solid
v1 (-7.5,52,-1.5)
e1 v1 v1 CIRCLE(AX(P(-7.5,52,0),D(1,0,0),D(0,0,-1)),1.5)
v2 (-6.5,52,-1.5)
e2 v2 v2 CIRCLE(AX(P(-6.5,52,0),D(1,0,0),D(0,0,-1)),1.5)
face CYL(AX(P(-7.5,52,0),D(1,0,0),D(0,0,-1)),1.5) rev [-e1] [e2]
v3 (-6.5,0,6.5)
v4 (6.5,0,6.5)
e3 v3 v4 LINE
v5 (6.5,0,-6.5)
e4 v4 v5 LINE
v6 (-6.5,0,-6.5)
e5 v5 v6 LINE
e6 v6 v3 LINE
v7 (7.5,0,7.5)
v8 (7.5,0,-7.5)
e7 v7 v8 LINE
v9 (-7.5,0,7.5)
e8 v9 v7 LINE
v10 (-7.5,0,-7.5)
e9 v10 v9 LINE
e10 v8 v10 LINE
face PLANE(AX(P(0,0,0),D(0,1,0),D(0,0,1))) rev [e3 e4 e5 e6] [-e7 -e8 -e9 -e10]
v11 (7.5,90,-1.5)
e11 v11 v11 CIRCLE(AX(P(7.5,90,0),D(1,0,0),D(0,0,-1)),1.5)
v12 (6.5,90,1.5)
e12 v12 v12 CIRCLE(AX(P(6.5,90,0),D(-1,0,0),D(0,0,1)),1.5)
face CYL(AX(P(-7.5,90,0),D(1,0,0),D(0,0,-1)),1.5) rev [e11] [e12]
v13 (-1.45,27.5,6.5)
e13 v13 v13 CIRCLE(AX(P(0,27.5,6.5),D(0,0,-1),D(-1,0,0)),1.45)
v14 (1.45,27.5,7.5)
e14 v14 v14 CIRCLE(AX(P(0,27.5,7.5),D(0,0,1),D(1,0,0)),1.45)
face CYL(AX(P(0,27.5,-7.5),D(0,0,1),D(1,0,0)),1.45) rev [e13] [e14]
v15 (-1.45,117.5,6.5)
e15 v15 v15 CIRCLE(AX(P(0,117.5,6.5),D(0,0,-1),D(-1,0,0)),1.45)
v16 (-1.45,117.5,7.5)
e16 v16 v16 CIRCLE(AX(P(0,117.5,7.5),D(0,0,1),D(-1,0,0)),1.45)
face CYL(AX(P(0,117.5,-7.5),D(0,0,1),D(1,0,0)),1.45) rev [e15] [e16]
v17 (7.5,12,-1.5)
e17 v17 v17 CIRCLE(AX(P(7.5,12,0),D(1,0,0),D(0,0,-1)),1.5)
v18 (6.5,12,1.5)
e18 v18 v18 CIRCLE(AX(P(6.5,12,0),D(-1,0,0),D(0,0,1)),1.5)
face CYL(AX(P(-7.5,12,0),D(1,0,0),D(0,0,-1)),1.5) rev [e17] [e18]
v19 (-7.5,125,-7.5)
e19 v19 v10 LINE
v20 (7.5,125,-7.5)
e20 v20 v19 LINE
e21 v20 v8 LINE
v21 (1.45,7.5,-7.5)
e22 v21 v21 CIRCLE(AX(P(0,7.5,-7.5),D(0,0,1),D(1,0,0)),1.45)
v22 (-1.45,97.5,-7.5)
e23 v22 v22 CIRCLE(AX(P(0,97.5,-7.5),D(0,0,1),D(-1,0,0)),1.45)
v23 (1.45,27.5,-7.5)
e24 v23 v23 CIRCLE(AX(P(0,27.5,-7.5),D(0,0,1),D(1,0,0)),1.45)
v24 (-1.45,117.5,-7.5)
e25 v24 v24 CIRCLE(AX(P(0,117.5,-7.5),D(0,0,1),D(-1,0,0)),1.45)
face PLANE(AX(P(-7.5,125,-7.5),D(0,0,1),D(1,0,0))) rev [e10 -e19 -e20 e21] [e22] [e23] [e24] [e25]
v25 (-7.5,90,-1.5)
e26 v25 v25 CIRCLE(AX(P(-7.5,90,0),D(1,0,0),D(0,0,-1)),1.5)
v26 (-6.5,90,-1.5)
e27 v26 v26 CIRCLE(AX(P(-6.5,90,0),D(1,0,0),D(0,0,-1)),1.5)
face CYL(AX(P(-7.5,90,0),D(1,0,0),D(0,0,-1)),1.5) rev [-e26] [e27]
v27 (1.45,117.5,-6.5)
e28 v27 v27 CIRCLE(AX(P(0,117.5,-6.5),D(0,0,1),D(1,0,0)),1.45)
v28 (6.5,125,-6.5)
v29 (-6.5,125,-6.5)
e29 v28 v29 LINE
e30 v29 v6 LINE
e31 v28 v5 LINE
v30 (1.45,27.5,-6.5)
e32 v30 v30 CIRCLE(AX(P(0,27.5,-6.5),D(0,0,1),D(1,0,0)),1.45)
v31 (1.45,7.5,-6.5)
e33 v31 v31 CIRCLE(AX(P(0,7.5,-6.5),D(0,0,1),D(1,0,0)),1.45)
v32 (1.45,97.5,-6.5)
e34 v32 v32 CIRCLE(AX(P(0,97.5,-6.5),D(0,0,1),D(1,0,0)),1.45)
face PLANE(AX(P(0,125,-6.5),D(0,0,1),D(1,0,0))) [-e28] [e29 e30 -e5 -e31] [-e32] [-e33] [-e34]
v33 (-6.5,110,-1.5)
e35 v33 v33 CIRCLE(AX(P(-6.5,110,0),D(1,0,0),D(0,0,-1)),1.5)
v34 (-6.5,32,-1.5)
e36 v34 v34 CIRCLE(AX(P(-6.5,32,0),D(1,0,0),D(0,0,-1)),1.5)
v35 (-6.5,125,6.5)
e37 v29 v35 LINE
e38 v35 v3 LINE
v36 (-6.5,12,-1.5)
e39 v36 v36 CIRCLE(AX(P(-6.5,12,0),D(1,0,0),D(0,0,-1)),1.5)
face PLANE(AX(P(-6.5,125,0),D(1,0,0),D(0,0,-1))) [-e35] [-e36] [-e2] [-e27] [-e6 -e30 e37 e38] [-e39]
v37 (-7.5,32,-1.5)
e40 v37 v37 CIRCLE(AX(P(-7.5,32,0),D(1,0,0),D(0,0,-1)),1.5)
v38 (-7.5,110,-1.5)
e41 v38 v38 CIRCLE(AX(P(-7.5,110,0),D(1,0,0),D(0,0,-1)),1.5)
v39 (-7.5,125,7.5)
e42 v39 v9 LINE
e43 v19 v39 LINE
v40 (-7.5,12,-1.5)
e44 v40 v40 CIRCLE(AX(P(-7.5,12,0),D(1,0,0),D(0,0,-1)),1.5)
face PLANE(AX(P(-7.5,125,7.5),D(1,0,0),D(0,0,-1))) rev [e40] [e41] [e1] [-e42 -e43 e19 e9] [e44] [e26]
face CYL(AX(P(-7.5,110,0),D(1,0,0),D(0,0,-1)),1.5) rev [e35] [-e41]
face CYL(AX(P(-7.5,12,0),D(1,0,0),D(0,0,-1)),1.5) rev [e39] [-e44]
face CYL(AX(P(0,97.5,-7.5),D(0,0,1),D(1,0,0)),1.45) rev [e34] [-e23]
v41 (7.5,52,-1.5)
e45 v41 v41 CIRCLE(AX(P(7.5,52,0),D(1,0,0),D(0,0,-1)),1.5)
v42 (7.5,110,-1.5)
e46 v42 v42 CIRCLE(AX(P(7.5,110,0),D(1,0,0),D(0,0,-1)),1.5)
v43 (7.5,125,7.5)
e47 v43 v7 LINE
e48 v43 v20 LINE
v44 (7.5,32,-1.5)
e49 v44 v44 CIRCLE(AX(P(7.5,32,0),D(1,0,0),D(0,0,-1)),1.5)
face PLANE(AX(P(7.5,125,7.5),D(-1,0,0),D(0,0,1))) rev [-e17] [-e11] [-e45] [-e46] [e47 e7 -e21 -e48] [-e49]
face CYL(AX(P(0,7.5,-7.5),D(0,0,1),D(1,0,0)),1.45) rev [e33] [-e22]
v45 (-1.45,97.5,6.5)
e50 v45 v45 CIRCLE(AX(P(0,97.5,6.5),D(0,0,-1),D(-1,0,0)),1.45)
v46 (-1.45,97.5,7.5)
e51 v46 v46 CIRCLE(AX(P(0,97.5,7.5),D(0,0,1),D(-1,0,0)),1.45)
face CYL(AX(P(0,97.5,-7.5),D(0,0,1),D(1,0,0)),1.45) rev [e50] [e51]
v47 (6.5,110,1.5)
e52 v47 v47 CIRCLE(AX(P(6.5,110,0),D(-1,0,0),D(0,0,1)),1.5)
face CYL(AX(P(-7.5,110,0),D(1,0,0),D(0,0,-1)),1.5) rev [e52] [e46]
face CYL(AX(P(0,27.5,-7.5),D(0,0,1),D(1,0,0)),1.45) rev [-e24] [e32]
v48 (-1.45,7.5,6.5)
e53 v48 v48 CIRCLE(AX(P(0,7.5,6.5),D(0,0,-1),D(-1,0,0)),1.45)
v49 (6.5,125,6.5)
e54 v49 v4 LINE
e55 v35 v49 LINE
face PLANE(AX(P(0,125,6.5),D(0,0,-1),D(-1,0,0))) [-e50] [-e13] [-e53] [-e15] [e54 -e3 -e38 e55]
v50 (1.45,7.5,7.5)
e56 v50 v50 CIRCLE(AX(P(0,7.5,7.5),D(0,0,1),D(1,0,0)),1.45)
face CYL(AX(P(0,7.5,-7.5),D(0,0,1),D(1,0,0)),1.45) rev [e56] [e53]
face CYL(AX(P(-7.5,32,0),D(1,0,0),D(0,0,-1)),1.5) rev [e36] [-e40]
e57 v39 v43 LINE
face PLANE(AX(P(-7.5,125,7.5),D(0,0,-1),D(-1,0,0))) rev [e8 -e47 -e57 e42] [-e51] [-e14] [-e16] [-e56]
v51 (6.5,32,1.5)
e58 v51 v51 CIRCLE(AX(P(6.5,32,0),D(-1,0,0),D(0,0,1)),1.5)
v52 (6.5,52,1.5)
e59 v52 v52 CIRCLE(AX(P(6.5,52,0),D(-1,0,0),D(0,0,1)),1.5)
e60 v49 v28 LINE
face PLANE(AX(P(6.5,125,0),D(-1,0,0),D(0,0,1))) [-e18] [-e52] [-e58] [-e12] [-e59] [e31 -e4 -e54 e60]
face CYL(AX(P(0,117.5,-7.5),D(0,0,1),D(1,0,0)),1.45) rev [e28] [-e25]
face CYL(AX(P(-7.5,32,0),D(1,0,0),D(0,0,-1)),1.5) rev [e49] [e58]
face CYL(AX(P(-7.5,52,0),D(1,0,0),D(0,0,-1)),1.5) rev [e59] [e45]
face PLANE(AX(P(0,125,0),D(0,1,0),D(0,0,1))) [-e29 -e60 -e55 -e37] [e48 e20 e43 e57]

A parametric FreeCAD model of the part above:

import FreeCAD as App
import Part
import Sketcher
from FreeCAD import Vector
Q = App.Units.Quantity

doc = App.newDocument("Part")
body = doc.addObject("PartDesign::Body", "Body")

# Sketch on XZ plane
sketch1 = body.newObject("Sketcher::SketchObject", "Sketch")
sketch1.AttachmentSupport = (doc.getObject("XZ_Plane"), [""])
sketch1.MapMode = "FlatFace"
sketch1.addGeometry([
    Part.LineSegment(Vector(-8, -8, 0), Vector(-8, 8, 0)),  # 0
    Part.LineSegment(Vector(-8, 8, 0), Vector(8, 8, 0)),  # 1
    Part.LineSegment(Vector(8, 8, 0), Vector(8, -8, 0)),  # 2
    Part.LineSegment(Vector(8, -8, 0), Vector(-8, -8, 0)),  # 3
    Part.LineSegment(Vector(6, 6, 0), Vector(-6, 6, 0)),  # 4
    Part.LineSegment(Vector(-6, 6, 0), Vector(-6, -6, 0)),  # 5
    Part.LineSegment(Vector(-6, -6, 0), Vector(6, -6, 0)),  # 6
    Part.LineSegment(Vector(6, -6, 0), Vector(6, 6, 0)),  # 7
], False)
sketch1.addConstraint([
    Sketcher.Constraint("Coincident", 0, 2, 1, 1),
    Sketcher.Constraint("Coincident", 1, 2, 2, 1),
    Sketcher.Constraint("Coincident", 2, 2, 3, 1),
    Sketcher.Constraint("Coincident", 3, 2, 0, 1),
    Sketcher.Constraint("Coincident", 4, 2, 5, 1),
    Sketcher.Constraint("Coincident", 5, 2, 6, 1),
    Sketcher.Constraint("Coincident", 6, 2, 7, 1),
    Sketcher.Constraint("Coincident", 7, 2, 4, 1),
    Sketcher.Constraint("Vertical", 0),
    Sketcher.Constraint("Horizontal", 1),
    Sketcher.Constraint("Vertical", 2),
    Sketcher.Constraint("Horizontal", 3),
    Sketcher.Constraint("Horizontal", 4),
    Sketcher.Constraint("Vertical", 5),
    Sketcher.Constraint("Horizontal", 6),
    Sketcher.Constraint("Vertical", 7),
    Sketcher.Constraint("Symmetric", 0, 2, 2, 2, -1, 1),
    Sketcher.Constraint("Symmetric", 4, 2, 6, 2, -1, 1),
    Sketcher.Constraint("Equal", 3, 0),
    Sketcher.Constraint("Equal", 6, 5),
    Sketcher.Constraint("DistanceX", 1, 1, 1, 2, Q("15 mm")),
    Sketcher.Constraint("DistanceX", 4, 2, 4, 1, Q("13 mm")),
])
pad1 = body.newObject("PartDesign::Pad", "Pad")
pad1.Profile = sketch1
pad1.Length = 125
pad1.Reversed = True

# Sketch on XY plane
sketch2 = body.newObject("Sketcher::SketchObject", "Sketch001")
sketch2.AttachmentSupport = (doc.getObject("XY_Plane"), [""])
sketch2.MapMode = "FlatFace"
sketch2.AttachmentOffset = App.Placement(Vector(0, 0, 7.5), App.Rotation())
sketch2.addGeometry([
    Part.Circle(Vector(0, 7.5, 0), Vector(0, 0, 1), 1.4),
    Part.Circle(Vector(0, 27.5, 0), Vector(0, 0, 1), 1.4),
    Part.Circle(Vector(0, 97.5, 0), Vector(0, 0, 1), 1.4),
    Part.Circle(Vector(0, 117.5, 0), Vector(0, 0, 1), 1.4),
], False)
sketch2.addConstraint([
    Sketcher.Constraint("Equal", 0, 1),
    Sketcher.Constraint("Equal", 1, 2),
    Sketcher.Constraint("Equal", 2, 3),
    Sketcher.Constraint("PointOnObject", 0, 3, -2),
    Sketcher.Constraint("PointOnObject", 1, 3, -2),
    Sketcher.Constraint("PointOnObject", 2, 3, -2),
    Sketcher.Constraint("PointOnObject", 3, 3, -2),
    Sketcher.Constraint("Diameter", 0, Q("2.9 mm")),
    Sketcher.Constraint("DistanceY", 0, 3, 1, 3, Q("20 mm")),
    Sketcher.Constraint("DistanceY", 1, 3, 2, 3, Q("70 mm")),
    Sketcher.Constraint("DistanceY", 2, 3, 3, 3, Q("20 mm")),
    Sketcher.Constraint("DistanceY", -1, 1, 0, 3, Q("7.5 mm")),
])
pocket1 = body.newObject("PartDesign::Pocket", "Pocket")
pocket1.Profile = sketch2
pocket1.Type = "ThroughAll"

# Sketch on YZ plane
sketch3 = body.newObject("Sketcher::SketchObject", "Sketch002")
sketch3.AttachmentSupport = (doc.getObject("YZ_Plane"), [""])
sketch3.MapMode = "FlatFace"
sketch3.AttachmentOffset = App.Placement(Vector(0, 0, 7.5), App.Rotation())
sketch3.addGeometry([
    Part.Circle(Vector(32, 0, 0), Vector(0, 0, 1), 1.5),  # 0
    Part.Circle(Vector(12, 0, 0), Vector(0, 0, 1), 1.5),  # 1
    Part.Circle(Vector(52, 0, 0), Vector(0, 0, 1), 1.5),  # 2
    Part.Circle(Vector(110, 0, 0), Vector(0, 0, 1), 1.5),  # 3
    Part.Circle(Vector(90, 0, 0), Vector(0, 0, 1), 1.5),  # 4
], False)
sketch3.addConstraint([
    Sketcher.Constraint("Equal", 0, 1),
    Sketcher.Constraint("Equal", 1, 2),
    Sketcher.Constraint("Equal", 2, 3),
    Sketcher.Constraint("Equal", 3, 4),
    Sketcher.Constraint("PointOnObject", 0, 3, -1),
    Sketcher.Constraint("PointOnObject", 1, 3, -1),
    Sketcher.Constraint("PointOnObject", 2, 3, -1),
    Sketcher.Constraint("PointOnObject", 3, 3, -1),
    Sketcher.Constraint("PointOnObject", 4, 3, -1),
    Sketcher.Constraint("Diameter", 0, Q("3 mm")),
    Sketcher.Constraint("DistanceX", -1, 1, 0, 3, Q("32 mm")),
    Sketcher.Constraint("DistanceX", -1, 1, 1, 3, Q("12 mm")),
    Sketcher.Constraint("DistanceX", -1, 1, 2, 3, Q("52 mm")),
    Sketcher.Constraint("DistanceX", -1, 1, 3, 3, Q("110 mm")),
    Sketcher.Constraint("DistanceX", -1, 1, 4, 3, Q("90 mm")),
])
pocket2 = body.newObject("PartDesign::Pocket", "Pocket001")
pocket2.Profile = sketch3
pocket2.Type = "ThroughAll"

doc.recompute()
